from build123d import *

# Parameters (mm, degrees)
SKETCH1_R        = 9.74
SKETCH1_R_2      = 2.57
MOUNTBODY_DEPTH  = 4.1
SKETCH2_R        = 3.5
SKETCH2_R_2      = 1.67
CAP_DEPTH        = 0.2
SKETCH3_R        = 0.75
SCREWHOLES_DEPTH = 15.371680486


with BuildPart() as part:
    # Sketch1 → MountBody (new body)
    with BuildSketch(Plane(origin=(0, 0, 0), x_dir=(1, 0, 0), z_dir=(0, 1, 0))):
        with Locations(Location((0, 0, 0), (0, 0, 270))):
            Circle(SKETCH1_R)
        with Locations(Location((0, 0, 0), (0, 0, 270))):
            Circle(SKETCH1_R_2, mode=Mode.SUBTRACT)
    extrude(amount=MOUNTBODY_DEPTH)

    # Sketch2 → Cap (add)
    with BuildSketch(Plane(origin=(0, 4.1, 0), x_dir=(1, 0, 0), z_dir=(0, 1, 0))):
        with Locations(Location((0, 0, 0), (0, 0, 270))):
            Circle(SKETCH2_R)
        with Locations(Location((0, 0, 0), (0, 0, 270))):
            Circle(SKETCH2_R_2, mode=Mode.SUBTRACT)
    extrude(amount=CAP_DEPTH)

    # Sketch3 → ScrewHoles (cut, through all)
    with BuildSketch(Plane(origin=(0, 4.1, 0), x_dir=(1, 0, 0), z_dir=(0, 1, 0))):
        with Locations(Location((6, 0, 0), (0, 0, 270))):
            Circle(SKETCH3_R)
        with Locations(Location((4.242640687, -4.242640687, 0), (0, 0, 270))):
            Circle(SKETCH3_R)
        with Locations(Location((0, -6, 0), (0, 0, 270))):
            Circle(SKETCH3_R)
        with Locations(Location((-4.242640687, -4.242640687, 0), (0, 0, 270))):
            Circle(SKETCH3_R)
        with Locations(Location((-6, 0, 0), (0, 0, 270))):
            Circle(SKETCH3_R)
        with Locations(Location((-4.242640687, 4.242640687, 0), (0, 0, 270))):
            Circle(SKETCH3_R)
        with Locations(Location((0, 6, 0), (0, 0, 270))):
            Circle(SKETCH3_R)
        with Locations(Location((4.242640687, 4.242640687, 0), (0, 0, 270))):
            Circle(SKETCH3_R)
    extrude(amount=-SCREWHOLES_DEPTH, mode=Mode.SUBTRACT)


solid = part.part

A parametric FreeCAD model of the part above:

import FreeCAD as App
import Part
import Sketcher

V = App.Vector
Q = App.Units.Quantity

doc = App.newDocument("Part")
body = doc.addObject("PartDesign::Body", "Body")

# Sketch on XZ plane
sketch1 = doc.addObject("Sketcher::SketchObject", "Sketch")
body.addObject(sketch1)
sketch1.AttachmentSupport = (doc.XZ_Plane, [""])
sketch1.MapMode = "FlatFace"
sketch1.addGeometry(Part.Circle(V(0, 0, 0), V(0, 0, 1), 9.7), False)
sketch1.addGeometry(Part.Circle(V(0, 0, 0), V(0, 0, 1), 2.6), False)
sketch1.addConstraint(Sketcher.Constraint("Coincident", 0, 3, -1, 1))
sketch1.addConstraint(Sketcher.Constraint("Coincident", 1, 3, -1, 1))
sketch1.addConstraint(Sketcher.Constraint("Diameter", 0, Q("19.48 mm")))
sketch1.addConstraint(Sketcher.Constraint("Diameter", 1, Q("5.14 mm")))
pad1 = doc.addObject("PartDesign::Pad", "Pad")
body.addObject(pad1)
pad1.Profile = sketch1
pad1.Length = 4.1
pad1.Reversed = True

# Sketch on XZ plane
sketch2 = doc.addObject("Sketcher::SketchObject", "Sketch001")
body.addObject(sketch2)
sketch2.AttachmentSupport = (doc.XZ_Plane, [""])
sketch2.MapMode = "FlatFace"
sketch2.AttachmentOffset = App.Placement(V(0, 0, -4.1), App.Rotation())
sketch2.addGeometry(Part.Circle(V(0, 0, 0), V(0, 0, 1), 3.5), False)
sketch2.addGeometry(Part.Circle(V(0, 0, 0), V(0, 0, 1), 1.7), False)
sketch2.addConstraint(Sketcher.Constraint("Coincident", 0, 3, -1, 1))
sketch2.addConstraint(Sketcher.Constraint("Coincident", 1, 3, -1, 1))
sketch2.addConstraint(Sketcher.Constraint("Diameter", 0, Q("7 mm")))
sketch2.addConstraint(Sketcher.Constraint("Diameter", 1, Q("3.34 mm")))
pad2 = doc.addObject("PartDesign::Pad", "Pad001")
body.addObject(pad2)
pad2.Profile = sketch2
pad2.Length = 0.2
pad2.Reversed = True

# Sketch on XZ plane
sketch3 = doc.addObject("Sketcher::SketchObject", "Sketch002")
body.addObject(sketch3)
sketch3.AttachmentSupport = (doc.XZ_Plane, [""])
sketch3.MapMode = "FlatFace"
sketch3.AttachmentOffset = App.Placement(V(0, 0, -4.1), App.Rotation())
sketch3.addGeometry(Part.Circle(V(6, 0, 0), V(0, 0, 1), 0.8), False)
sketch3.addGeometry(Part.Circle(V(4.2, 4.2, 0), V(0, 0, 1), 0.8), False)
sketch3.addGeometry(Part.Circle(V(0, 6, 0), V(0, 0, 1), 0.8), False)
sketch3.addGeometry(Part.Circle(V(-4.2, 4.2, 0), V(0, 0, 1), 0.8), False)
sketch3.addGeometry(Part.Circle(V(-6, 0, 0), V(0, 0, 1), 0.8), False)
sketch3.addGeometry(Part.Circle(V(-4.2, -4.2, 0), V(0, 0, 1), 0.8), False)
sketch3.addGeometry(Part.Circle(V(0, -6, 0), V(0, 0, 1), 0.8), False)
sketch3.addGeometry(Part.Circle(V(4.2, -4.2, 0), V(0, 0, 1), 0.8), False)
sketch3.addConstraint(Sketcher.Constraint("Equal", 0, 1))
sketch3.addConstraint(Sketcher.Constraint("Equal", 1, 2))
sketch3.addConstraint(Sketcher.Constraint("Equal", 2, 3))
sketch3.addConstraint(Sketcher.Constraint("Equal", 3, 4))
sketch3.addConstraint(Sketcher.Constraint("Equal", 4, 5))
sketch3.addConstraint(Sketcher.Constraint("Equal", 5, 6))
sketch3.addConstraint(Sketcher.Constraint("Equal", 6, 7))
sketch3.addConstraint(Sketcher.Constraint("Symmetric", 0, 3, 4, 3, -1, 1))
sketch3.addConstraint(Sketcher.Constraint("Symmetric", 1, 3, 5, 3, -1, 1))
sketch3.addConstraint(Sketcher.Constraint("Symmetric", 2, 3, 6, 3, -1, 1))
sketch3.addConstraint(Sketcher.Constraint("Symmetric", 3, 3, 7, 3, -1, 1))
sketch3.addConstraint(Sketcher.Constraint("Symmetric", 1, 3, 3, 3, -2))
sketch3.addConstraint(Sketcher.Constraint("PointOnObject", 0, 3, -1))
sketch3.addConstraint(Sketcher.Constraint("PointOnObject", 2, 3, -2))
sketch3.addConstraint(Sketcher.Constraint("Diameter", 0, Q("1.5 mm")))
sketch3.addConstraint(Sketcher.Constraint("DistanceX", -1, 1, 0, 3, Q("6 mm")))
sketch3.addConstraint(Sketcher.Constraint("DistanceY", -1, 1, 2, 3, Q("6 mm")))
sketch3.addConstraint(Sketcher.Constraint("DistanceX", -1, 1, 1, 3, Q("4.242641 mm")))
sketch3.addConstraint(Sketcher.Constraint("DistanceY", -1, 1, 1, 3, Q("4.242641 mm")))
pocket1 = doc.addObject("PartDesign::Pocket", "Pocket")
body.addObject(pocket1)
pocket1.Profile = sketch3
pocket1.Type = "ThroughAll"
pocket1.Reversed = True

doc.recompute()
